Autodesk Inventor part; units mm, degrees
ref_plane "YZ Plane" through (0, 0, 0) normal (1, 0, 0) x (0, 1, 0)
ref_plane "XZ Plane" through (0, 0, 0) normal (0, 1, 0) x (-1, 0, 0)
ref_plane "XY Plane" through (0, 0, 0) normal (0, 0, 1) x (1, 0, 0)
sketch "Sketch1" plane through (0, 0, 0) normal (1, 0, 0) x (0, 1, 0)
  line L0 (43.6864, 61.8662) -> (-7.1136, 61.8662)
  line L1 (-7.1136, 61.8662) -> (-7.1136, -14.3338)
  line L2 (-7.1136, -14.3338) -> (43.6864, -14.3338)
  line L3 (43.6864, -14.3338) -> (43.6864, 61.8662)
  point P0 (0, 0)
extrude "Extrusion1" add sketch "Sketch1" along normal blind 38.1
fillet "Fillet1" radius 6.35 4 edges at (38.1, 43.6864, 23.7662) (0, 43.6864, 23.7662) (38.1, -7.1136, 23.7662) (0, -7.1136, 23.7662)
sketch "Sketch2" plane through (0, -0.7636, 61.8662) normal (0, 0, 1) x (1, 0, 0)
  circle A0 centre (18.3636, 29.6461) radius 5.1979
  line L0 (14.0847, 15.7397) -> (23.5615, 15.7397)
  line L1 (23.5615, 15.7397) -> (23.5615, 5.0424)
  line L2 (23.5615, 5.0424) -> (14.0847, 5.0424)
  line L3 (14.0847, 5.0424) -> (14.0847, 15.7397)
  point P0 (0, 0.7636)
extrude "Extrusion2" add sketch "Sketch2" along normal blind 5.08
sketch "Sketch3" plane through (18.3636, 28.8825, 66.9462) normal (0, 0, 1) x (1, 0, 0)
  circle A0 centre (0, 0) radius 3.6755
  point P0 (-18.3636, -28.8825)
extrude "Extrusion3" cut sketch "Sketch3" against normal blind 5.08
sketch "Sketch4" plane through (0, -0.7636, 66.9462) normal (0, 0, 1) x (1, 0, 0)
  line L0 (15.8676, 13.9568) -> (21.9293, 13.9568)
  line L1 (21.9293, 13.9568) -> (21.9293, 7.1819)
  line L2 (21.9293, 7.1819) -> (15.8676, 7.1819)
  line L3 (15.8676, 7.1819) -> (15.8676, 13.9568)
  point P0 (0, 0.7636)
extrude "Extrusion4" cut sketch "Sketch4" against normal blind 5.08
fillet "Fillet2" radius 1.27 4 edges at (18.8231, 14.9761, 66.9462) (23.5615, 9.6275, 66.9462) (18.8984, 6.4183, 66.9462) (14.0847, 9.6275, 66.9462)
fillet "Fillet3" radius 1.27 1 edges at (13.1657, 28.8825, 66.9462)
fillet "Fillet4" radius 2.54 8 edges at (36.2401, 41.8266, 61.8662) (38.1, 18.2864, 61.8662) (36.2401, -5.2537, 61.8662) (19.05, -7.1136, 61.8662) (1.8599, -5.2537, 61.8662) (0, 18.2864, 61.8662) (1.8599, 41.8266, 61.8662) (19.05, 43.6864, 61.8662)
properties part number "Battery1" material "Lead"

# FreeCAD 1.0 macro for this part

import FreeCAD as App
import Part
import Sketcher
from FreeCAD import Vector
Q = App.Units.Quantity


def edges_at(feature, points):
    """Names of the edges that pass closest to the given points."""
    edges = feature.Shape.Edges
    near = lambda p: min(range(len(edges)), key=lambda i: edges[i].distToShape(Part.Vertex(*p))[0])
    return sorted({f"Edge{near(p) + 1}" for p in points})

doc = App.newDocument("Part")
body = doc.addObject("PartDesign::Body", "Body")

# Sketch on YZ plane
sketch1 = body.newObject("Sketcher::SketchObject", "Sketch")
sketch1.AttachmentSupport = (doc.getObject("YZ_Plane"), [""])
sketch1.MapMode = "FlatFace"
sketch1.addGeometry([
    Part.LineSegment(Vector(43.6864, -14.3338, 0), Vector(43.6864, 61.8662, 0)),
    Part.LineSegment(Vector(43.6864, 61.8662, 0), Vector(-7.1136, 61.8662, 0)),
    Part.LineSegment(Vector(-7.1136, 61.8662, 0), Vector(-7.1136, -14.3338, 0)),
    Part.LineSegment(Vector(-7.1136, -14.3338, 0), Vector(43.6864, -14.3338, 0)),
], False)
sketch1.addConstraint([
    Sketcher.Constraint("Coincident", 0, 2, 1, 1),
    Sketcher.Constraint("Coincident", 1, 2, 2, 1),
    Sketcher.Constraint("Coincident", 2, 2, 3, 1),
    Sketcher.Constraint("Coincident", 3, 2, 0, 1),
    Sketcher.Constraint("Vertical", 0),
    Sketcher.Constraint("Horizontal", 1),
    Sketcher.Constraint("Vertical", 2),
    Sketcher.Constraint("Horizontal", 3),
    Sketcher.Constraint("DistanceX", 1, 2, 1, 1, Q("2 in")),
    Sketcher.Constraint("DistanceY", 0, 1, 0, 2, Q("3 in")),
    Sketcher.Constraint("DistanceX", -1, 1, 0, 2, 43.6864),
    Sketcher.Constraint("DistanceY", -1, 1, 0, 2, 61.8662),
])
pad1 = body.newObject("PartDesign::Pad", "Pad")
pad1.Profile = sketch1
pad1.Length = Q("1.5 in")
doc.recompute()

fillet = body.newObject("PartDesign::Fillet", "Fillet")
fillet.Base = (pad1, edges_at(pad1, [
    (38.1, 43.686, 23.766),
    (0, 43.686, 23.766),
    (38.1, -7.114, 23.766),
    (0, -7.114, 23.766),
]))
fillet.Radius = Q("0.25 in")

# Sketch on XY plane
sketch2 = body.newObject("Sketcher::SketchObject", "Sketch001")
sketch2.AttachmentSupport = (doc.getObject("XY_Plane"), [""])
sketch2.MapMode = "FlatFace"
sketch2.AttachmentOffset = App.Placement(Vector(0, 0, 61.8662), App.Rotation())
sketch2.addGeometry([
    Part.Circle(Vector(18.3636, 28.8825, 0), Vector(0, 0, 1), 5.1979),  # 0
    Part.LineSegment(Vector(23.5615, 14.9761, 0), Vector(14.0847, 14.9761, 0)),  # 1
    Part.LineSegment(Vector(14.0847, 14.9761, 0), Vector(14.0847, 4.2788, 0)),  # 2
    Part.LineSegment(Vector(14.0847, 4.2788, 0), Vector(23.5615, 4.2788, 0)),  # 3
    Part.LineSegment(Vector(23.5615, 4.2788, 0), Vector(23.5615, 14.9761, 0)),  # 4
], False)
sketch2.addConstraint([
    Sketcher.Constraint("Coincident", 1, 2, 2, 1),
    Sketcher.Constraint("Coincident", 2, 2, 3, 1),
    Sketcher.Constraint("Coincident", 3, 2, 4, 1),
    Sketcher.Constraint("Coincident", 4, 2, 1, 1),
    Sketcher.Constraint("Horizontal", 1),
    Sketcher.Constraint("Vertical", 2),
    Sketcher.Constraint("Horizontal", 3),
    Sketcher.Constraint("Vertical", 4),
    Sketcher.Constraint("Diameter", 0, 10.3958),
    Sketcher.Constraint("DistanceX", 1, 2, 1, 1, Q("0.3731 in")),
    Sketcher.Constraint("DistanceY", 2, 2, 2, 1, 10.6973),
    Sketcher.Constraint("DistanceY", -1, 1, 0, 3, Q("1.1371 in")),
    Sketcher.Constraint("DistanceY", -1, 1, 1, 2, Q("0.5896 in")),
    Sketcher.Constraint("DistanceX", -1, 1, 0, 3, 18.3636),
    Sketcher.Constraint("DistanceX", -1, 1, 1, 2, 14.0847),
])
pad2 = body.newObject("PartDesign::Pad", "Pad001")
pad2.Profile = sketch2
pad2.Length = Q("0.2 in")

# Sketch on XY plane
sketch3 = body.newObject("Sketcher::SketchObject", "Sketch002")
sketch3.AttachmentSupport = (doc.getObject("XY_Plane"), [""])
sketch3.MapMode = "FlatFace"
sketch3.AttachmentOffset = App.Placement(Vector(0, 0, 66.9462), App.Rotation())
sketch3.addGeometry(Part.Circle(Vector(18.3636, 28.8825, 0), Vector(0, 0, 1), 3.6755), False)
sketch3.addConstraint([
    Sketcher.Constraint("Diameter", 0, Q("0.2894 in")),
    Sketcher.Constraint("DistanceY", -1, 1, 0, 3, Q("1.1371 in")),
    Sketcher.Constraint("DistanceX", -1, 1, 0, 3, 18.3636),
])
pocket1 = body.newObject("PartDesign::Pocket", "Pocket")
pocket1.Profile = sketch3
pocket1.Length = Q("0.2 in")

# Sketch on XY plane
sketch4 = body.newObject("Sketcher::SketchObject", "Sketch003")
sketch4.AttachmentSupport = (doc.getObject("XY_Plane"), [""])
sketch4.MapMode = "FlatFace"
sketch4.AttachmentOffset = App.Placement(Vector(0, 0, 66.9462), App.Rotation())
sketch4.addGeometry([
    Part.LineSegment(Vector(21.9293, 13.1932, 0), Vector(15.8676, 13.1932, 0)),
    Part.LineSegment(Vector(15.8676, 13.1932, 0), Vector(15.8676, 6.4183, 0)),
    Part.LineSegment(Vector(15.8676, 6.4183, 0), Vector(21.9293, 6.4183, 0)),
    Part.LineSegment(Vector(21.9293, 6.4183, 0), Vector(21.9293, 13.1932, 0)),
], False)
sketch4.addConstraint([
    Sketcher.Constraint("Coincident", 0, 2, 1, 1),
    Sketcher.Constraint("Coincident", 1, 2, 2, 1),
    Sketcher.Constraint("Coincident", 2, 2, 3, 1),
    Sketcher.Constraint("Coincident", 3, 2, 0, 1),
    Sketcher.Constraint("Horizontal", 0),
    Sketcher.Constraint("Vertical", 1),
    Sketcher.Constraint("Horizontal", 2),
    Sketcher.Constraint("Vertical", 3),
    Sketcher.Constraint("DistanceX", 0, 2, 0, 1, 6.0617),
    Sketcher.Constraint("DistanceY", 1, 2, 1, 1, 6.775),
    Sketcher.Constraint("DistanceX", -1, 1, 0, 2, Q("0.6247 in")),
    Sketcher.Constraint("DistanceY", -1, 1, 1, 2, Q("0.2527 in")),
])
pocket2 = body.newObject("PartDesign::Pocket", "Pocket001")
pocket2.Profile = sketch4
pocket2.Length = Q("0.2 in")
doc.recompute()

fillet2 = body.newObject("PartDesign::Fillet", "Fillet001")
fillet2.Base = (pocket2, edges_at(pocket2, [
    (18.823, 14.976, 66.946),
    (23.561, 9.627, 66.946),
    (18.898, 6.418, 66.946),
    (14.085, 9.627, 66.946),
]))
fillet2.Radius = Q("0.05 in")
doc.recompute()

fillet3 = body.newObject("PartDesign::Fillet", "Fillet002")
fillet3.Base = (fillet2, edges_at(fillet2, [(13.166, 28.883, 66.946)]))
fillet3.Radius = Q("0.05 in")
doc.recompute()

fillet4 = body.newObject("PartDesign::Fillet", "Fillet003")
fillet4.Base = (fillet3, edges_at(fillet3, [
    (36.24, 41.827, 61.866),
    (38.1, 18.286, 61.866),
    (36.24, -5.254, 61.866),
    (19.05, -7.114, 61.866),
    (1.86, -5.254, 61.866),
    (0, 18.286, 61.866),
    (1.86, 41.827, 61.866),
    (19.05, 43.686, 61.866),
]))
fillet4.Radius = Q("0.1 in")

doc.recompute()
